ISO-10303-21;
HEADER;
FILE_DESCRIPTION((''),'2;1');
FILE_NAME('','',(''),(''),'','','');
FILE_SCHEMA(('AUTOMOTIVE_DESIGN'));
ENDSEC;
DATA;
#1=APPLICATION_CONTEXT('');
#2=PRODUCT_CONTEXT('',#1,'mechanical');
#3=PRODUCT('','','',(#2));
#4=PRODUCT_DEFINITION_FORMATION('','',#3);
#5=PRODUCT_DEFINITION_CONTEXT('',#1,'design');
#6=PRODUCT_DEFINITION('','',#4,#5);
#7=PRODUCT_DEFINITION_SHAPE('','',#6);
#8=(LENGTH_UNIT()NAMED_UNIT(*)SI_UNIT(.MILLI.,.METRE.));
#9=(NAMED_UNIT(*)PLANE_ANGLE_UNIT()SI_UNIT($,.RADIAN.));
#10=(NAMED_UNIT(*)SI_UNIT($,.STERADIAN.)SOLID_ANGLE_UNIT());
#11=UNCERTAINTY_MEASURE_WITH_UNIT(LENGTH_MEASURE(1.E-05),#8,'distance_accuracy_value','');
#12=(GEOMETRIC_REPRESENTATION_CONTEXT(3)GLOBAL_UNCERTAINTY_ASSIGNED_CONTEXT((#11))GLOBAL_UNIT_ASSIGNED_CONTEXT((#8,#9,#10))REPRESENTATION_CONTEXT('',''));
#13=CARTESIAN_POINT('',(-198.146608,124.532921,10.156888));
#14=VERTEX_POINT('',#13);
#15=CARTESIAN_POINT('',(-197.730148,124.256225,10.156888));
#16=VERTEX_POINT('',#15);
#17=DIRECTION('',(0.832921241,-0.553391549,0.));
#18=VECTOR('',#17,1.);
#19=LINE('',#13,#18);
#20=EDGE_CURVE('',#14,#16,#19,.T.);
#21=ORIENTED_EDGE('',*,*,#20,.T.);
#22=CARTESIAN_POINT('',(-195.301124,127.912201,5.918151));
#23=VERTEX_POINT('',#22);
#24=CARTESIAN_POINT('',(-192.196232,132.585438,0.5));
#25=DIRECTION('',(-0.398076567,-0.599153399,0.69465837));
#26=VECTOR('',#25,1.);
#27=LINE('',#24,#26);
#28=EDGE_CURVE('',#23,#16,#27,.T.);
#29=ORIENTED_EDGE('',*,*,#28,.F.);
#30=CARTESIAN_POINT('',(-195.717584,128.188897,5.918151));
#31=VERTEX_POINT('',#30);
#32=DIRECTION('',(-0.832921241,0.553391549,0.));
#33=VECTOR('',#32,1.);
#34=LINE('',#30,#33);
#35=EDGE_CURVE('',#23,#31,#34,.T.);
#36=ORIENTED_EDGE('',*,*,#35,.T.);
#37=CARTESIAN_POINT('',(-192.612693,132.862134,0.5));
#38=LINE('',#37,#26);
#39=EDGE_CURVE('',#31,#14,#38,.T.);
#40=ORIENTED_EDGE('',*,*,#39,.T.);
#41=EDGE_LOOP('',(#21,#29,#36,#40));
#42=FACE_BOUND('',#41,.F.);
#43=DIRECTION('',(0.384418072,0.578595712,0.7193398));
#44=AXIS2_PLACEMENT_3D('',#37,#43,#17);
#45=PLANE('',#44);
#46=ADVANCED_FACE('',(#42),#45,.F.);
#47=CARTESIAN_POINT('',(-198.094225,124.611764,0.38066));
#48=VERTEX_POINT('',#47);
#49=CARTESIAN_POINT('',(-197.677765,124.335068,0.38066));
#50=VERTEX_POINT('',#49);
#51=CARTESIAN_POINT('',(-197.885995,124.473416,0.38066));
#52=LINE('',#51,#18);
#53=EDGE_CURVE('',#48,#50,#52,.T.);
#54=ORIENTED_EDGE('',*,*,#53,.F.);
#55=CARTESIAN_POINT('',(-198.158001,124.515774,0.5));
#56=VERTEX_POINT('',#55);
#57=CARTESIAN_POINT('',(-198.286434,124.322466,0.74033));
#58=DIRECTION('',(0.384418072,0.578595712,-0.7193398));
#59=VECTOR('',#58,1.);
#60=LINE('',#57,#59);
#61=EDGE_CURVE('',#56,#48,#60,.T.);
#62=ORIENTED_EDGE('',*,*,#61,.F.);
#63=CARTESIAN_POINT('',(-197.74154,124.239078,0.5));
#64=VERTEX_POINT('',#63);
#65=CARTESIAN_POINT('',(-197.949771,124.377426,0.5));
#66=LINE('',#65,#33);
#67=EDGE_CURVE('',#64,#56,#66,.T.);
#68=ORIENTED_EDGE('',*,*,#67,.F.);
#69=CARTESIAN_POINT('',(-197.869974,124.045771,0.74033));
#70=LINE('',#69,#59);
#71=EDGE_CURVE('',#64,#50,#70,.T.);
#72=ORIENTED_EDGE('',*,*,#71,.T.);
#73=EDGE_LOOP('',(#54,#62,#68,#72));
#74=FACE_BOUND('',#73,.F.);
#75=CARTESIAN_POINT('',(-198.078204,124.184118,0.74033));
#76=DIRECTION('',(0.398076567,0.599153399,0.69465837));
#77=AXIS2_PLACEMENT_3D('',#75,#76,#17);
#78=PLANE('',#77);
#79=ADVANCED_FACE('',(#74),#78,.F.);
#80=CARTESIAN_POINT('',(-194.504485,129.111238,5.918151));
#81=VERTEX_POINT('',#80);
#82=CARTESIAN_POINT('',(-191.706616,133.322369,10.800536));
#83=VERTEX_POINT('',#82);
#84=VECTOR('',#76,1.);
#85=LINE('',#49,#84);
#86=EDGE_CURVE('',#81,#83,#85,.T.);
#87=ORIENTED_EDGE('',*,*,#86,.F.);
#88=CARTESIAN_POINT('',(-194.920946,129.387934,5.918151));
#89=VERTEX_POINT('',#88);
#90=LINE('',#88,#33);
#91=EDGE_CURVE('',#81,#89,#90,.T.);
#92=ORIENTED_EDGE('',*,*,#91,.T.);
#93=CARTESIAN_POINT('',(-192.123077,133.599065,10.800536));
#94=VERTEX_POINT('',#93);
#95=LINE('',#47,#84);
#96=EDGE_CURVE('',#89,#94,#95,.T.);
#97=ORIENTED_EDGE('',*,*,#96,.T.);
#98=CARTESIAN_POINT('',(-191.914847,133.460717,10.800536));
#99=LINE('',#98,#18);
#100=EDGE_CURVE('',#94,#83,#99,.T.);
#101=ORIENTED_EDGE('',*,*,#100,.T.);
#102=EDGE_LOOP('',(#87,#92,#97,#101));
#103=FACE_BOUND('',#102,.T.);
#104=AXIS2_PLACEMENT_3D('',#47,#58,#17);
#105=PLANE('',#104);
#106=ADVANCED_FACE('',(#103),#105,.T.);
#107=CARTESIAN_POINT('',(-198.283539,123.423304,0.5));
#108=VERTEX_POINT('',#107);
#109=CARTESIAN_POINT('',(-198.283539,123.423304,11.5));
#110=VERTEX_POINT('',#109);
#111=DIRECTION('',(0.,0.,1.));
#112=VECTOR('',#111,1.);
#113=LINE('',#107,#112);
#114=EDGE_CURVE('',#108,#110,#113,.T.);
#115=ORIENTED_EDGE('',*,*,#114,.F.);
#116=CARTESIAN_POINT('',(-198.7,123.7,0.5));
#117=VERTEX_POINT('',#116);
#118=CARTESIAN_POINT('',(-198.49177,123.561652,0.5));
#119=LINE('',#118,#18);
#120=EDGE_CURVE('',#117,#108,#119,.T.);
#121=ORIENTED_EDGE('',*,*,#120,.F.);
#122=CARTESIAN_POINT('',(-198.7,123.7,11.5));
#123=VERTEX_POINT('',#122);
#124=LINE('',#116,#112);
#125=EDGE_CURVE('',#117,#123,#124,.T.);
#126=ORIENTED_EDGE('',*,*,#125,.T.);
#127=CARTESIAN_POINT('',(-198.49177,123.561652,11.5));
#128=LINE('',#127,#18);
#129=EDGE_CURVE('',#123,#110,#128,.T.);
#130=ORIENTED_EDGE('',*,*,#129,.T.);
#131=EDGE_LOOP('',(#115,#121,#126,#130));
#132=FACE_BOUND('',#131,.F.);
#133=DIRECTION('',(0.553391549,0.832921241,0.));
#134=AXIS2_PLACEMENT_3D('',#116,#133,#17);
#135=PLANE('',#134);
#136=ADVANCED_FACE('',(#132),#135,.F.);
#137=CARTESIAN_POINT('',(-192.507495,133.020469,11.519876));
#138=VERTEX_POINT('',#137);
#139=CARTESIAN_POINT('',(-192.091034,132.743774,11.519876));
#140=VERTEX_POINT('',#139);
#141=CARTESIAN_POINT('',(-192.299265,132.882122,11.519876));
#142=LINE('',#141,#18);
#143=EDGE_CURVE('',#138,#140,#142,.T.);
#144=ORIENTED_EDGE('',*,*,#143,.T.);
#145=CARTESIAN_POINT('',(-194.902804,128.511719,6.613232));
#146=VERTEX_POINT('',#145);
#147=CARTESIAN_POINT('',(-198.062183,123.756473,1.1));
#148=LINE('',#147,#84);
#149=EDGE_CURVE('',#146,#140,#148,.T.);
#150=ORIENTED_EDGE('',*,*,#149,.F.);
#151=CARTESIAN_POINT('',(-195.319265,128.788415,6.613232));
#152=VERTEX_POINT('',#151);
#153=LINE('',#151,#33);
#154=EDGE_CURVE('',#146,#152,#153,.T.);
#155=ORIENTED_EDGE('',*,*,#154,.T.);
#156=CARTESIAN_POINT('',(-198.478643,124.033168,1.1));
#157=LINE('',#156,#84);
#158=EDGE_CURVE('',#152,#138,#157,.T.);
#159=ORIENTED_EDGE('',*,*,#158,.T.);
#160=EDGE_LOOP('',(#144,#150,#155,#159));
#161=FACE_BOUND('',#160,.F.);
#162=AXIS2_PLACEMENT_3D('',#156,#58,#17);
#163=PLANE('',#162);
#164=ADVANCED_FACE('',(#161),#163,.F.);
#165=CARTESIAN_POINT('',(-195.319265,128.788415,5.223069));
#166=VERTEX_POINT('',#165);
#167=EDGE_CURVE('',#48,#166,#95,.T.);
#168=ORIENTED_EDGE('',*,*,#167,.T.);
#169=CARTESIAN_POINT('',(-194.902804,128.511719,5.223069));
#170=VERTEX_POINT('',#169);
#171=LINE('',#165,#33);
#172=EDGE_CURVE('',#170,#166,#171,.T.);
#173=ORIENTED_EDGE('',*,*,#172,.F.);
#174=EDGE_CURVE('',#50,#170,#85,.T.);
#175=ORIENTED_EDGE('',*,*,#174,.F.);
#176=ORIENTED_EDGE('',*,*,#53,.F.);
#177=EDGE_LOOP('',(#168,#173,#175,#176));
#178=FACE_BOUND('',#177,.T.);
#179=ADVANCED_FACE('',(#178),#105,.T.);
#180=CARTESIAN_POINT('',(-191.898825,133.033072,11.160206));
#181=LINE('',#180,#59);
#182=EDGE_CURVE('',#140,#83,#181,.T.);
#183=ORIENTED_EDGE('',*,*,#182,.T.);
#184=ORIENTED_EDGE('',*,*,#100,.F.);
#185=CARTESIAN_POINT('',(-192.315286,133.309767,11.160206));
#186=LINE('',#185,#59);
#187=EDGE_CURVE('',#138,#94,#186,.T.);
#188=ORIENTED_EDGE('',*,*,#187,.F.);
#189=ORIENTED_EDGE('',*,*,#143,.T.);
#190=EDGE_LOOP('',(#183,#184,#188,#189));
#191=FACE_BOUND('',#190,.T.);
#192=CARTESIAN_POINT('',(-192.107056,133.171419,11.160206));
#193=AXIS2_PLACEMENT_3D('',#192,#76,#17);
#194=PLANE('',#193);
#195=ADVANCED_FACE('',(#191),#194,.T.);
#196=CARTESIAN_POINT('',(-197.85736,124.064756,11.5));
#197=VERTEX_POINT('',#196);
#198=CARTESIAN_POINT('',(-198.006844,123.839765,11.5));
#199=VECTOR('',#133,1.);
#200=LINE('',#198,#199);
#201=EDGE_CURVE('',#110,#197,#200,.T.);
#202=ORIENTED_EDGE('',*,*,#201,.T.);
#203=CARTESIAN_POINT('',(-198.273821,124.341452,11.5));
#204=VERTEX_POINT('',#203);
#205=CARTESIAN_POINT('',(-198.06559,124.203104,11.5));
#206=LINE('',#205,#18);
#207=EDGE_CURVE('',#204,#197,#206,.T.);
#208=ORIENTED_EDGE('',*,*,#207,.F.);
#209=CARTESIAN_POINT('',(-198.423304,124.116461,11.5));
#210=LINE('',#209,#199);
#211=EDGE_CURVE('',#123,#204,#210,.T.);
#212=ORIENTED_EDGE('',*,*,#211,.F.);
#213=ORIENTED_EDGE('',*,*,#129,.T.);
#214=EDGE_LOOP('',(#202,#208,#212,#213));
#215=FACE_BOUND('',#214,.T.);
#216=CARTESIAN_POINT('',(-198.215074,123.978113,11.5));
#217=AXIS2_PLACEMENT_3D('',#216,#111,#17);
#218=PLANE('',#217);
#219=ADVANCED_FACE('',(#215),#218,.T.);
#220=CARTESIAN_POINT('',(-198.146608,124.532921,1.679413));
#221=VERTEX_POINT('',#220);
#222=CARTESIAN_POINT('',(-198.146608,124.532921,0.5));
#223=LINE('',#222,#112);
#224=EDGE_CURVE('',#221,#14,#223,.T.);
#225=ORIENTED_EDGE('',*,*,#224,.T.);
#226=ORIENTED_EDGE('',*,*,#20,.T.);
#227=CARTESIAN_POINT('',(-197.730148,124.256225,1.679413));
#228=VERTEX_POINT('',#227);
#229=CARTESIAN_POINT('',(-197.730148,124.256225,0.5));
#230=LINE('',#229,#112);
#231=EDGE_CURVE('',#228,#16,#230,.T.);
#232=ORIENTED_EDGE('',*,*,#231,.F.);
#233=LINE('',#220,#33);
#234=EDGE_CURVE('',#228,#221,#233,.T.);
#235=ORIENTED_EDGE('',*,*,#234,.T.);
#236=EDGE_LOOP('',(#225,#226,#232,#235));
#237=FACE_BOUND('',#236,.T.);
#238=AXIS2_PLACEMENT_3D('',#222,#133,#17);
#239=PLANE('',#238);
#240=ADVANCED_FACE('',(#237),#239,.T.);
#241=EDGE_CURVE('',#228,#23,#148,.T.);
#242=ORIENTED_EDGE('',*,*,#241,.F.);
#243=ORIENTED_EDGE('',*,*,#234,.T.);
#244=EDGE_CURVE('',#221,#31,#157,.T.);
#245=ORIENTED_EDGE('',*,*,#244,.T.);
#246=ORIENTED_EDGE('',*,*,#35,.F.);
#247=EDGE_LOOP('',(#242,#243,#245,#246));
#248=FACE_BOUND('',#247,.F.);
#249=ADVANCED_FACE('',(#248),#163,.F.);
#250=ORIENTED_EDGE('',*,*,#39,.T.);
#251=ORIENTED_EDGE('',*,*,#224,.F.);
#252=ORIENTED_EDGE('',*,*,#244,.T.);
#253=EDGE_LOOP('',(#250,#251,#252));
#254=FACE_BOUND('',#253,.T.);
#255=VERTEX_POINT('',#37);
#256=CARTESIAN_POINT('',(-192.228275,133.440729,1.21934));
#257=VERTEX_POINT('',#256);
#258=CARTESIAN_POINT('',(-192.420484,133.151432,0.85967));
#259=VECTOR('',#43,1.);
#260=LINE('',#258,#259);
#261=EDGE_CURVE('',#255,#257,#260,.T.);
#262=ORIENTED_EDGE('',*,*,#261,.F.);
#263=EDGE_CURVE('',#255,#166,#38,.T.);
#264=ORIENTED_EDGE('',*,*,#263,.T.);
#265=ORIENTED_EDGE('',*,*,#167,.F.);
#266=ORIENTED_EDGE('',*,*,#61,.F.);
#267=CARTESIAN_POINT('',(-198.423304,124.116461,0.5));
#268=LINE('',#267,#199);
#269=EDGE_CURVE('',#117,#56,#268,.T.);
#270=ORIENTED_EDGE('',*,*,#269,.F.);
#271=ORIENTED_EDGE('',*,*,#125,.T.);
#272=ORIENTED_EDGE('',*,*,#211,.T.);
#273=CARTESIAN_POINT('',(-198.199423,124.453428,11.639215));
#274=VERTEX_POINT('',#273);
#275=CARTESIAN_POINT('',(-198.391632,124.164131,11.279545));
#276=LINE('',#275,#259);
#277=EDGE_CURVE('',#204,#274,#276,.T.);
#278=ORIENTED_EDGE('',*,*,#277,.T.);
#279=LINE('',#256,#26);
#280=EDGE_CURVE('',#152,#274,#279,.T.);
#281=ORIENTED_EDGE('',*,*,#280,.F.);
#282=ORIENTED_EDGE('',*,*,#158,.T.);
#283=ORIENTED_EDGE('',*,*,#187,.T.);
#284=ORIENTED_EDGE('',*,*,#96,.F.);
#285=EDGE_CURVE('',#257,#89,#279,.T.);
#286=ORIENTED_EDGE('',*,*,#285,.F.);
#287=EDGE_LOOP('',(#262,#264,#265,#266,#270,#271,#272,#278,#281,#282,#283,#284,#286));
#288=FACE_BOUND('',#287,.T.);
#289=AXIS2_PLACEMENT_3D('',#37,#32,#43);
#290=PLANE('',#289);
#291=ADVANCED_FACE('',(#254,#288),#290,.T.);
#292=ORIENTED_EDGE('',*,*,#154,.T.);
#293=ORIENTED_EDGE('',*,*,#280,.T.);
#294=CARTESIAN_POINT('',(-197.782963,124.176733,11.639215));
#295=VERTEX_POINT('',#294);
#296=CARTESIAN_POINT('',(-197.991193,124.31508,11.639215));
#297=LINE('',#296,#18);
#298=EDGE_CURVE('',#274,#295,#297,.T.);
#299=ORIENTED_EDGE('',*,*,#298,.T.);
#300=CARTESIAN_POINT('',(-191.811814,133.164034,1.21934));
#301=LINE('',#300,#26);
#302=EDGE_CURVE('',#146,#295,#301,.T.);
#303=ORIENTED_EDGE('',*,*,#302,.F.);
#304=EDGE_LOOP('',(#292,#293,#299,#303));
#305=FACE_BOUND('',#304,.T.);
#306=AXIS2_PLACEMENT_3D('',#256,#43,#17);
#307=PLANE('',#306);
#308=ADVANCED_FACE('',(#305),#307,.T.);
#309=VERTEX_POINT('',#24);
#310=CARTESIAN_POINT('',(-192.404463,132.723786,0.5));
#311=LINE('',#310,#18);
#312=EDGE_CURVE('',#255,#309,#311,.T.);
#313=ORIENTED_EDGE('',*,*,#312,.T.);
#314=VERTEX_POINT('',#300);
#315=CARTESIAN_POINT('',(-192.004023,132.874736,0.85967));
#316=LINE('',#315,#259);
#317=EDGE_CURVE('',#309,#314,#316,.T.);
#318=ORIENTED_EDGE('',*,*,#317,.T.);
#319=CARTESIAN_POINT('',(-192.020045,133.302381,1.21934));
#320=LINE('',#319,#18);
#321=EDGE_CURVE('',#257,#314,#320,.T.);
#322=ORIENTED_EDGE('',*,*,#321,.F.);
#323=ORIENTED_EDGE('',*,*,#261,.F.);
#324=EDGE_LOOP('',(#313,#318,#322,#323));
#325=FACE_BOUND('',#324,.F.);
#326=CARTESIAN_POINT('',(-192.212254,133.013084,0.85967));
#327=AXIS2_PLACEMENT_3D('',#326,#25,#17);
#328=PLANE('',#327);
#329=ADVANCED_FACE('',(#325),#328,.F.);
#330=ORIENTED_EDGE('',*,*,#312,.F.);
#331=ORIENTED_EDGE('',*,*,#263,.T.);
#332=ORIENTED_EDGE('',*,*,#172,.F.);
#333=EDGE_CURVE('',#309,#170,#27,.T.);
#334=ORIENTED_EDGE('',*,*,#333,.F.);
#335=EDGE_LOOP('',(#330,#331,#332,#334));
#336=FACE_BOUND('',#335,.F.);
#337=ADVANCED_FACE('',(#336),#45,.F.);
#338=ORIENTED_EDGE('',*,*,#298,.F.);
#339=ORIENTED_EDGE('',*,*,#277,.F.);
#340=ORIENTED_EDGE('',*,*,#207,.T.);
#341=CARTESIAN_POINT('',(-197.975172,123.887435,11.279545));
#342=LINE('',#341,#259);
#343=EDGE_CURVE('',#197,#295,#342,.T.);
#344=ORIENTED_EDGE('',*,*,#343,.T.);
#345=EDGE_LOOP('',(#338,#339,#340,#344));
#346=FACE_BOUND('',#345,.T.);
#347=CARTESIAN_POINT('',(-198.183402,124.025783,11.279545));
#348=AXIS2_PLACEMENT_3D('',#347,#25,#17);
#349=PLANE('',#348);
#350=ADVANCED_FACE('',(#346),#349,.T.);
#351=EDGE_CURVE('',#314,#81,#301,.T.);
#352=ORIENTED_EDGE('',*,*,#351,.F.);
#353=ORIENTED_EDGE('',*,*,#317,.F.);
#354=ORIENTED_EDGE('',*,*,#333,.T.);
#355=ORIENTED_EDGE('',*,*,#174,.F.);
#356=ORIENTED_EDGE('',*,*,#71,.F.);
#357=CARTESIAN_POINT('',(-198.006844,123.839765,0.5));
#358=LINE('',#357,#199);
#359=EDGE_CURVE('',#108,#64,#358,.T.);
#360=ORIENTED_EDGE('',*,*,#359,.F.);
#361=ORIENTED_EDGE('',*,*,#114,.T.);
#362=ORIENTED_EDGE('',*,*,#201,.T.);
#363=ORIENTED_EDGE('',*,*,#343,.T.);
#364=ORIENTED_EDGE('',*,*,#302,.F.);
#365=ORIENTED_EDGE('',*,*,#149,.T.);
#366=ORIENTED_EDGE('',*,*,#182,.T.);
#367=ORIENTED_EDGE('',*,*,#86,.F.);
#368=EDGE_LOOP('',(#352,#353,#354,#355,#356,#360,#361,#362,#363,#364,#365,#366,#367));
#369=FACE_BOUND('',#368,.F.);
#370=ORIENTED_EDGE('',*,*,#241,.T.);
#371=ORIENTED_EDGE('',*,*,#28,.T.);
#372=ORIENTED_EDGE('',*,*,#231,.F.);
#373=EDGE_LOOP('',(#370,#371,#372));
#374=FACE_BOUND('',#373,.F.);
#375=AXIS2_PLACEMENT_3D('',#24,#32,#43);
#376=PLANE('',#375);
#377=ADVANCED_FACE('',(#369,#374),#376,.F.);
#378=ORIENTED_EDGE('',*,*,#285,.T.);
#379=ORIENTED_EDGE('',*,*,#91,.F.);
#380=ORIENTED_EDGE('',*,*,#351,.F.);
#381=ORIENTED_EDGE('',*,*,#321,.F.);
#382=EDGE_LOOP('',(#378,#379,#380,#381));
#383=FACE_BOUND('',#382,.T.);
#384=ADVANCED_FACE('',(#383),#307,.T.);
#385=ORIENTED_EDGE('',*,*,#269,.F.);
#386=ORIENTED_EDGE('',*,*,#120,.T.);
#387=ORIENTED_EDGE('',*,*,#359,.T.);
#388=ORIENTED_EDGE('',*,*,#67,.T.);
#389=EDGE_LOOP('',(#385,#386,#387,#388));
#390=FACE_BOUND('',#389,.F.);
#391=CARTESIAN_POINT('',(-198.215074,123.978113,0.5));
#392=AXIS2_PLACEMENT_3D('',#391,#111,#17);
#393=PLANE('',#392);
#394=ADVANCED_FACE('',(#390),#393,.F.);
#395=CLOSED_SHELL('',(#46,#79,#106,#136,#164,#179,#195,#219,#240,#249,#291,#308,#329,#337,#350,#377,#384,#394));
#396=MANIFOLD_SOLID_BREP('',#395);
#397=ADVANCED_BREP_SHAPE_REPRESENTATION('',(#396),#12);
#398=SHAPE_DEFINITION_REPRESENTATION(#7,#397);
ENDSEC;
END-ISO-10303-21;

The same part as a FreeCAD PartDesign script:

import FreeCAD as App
import Part
import Sketcher

V = App.Vector

doc = App.newDocument("Part")
body = doc.addObject("PartDesign::Body", "Body")

# Sketch on XY plane
sketch1 = body.newObject("Sketcher::SketchObject", "Sketch")
sketch1.AttachmentSupport = (doc.getObject("XY_Plane"), [""])
sketch1.MapMode = "FlatFace"
sketch1.addGeometry(Part.LineSegment(V(0, 1, 0), V(0, 0, 0)), False)
sketch1.addGeometry(Part.LineSegment(V(0, 0, 0), V(0.5, 0, 0)), False)
sketch1.addGeometry(Part.LineSegment(V(0.5, 0, 0), V(0.5, 1, 0)), False)
sketch1.addGeometry(Part.LineSegment(V(0.5, 1, 0), V(0, 1, 0)), False)
sketch1.addConstraint(Sketcher.Constraint("Coincident", 0, 2, 1, 1))
sketch1.addConstraint(Sketcher.Constraint("Coincident", 1, 2, 2, 1))
sketch1.addConstraint(Sketcher.Constraint("Coincident", 2, 2, 3, 1))
sketch1.addConstraint(Sketcher.Constraint("Coincident", 3, 2, 0, 1))
sketch1.addConstraint(Sketcher.Constraint("Vertical", 0))
sketch1.addConstraint(Sketcher.Constraint("Horizontal", 1))
sketch1.addConstraint(Sketcher.Constraint("Vertical", 2))
sketch1.addConstraint(Sketcher.Constraint("Horizontal", 3))
sketch1.addConstraint(Sketcher.Constraint("Coincident", 0, 2, -1, 1))
sketch1.addConstraint(Sketcher.Constraint("DistanceY", 0, 2, 0, 1, 1.0))
sketch1.addConstraint(Sketcher.Constraint("DistanceX", 1, 1, 1, 2, 0.5))
pad1 = body.newObject("PartDesign::Pad", "Pad")
pad1.Profile = sketch1
pad1.Length = 15
body2 = doc.addObject("PartDesign::Body", "Body001")
doc.recompute()

body.Placement = App.Placement(V(0, 0, 0), App.Rotation(V(1, 0, 0), 46))
boolean = body2.newObject("PartDesign::Boolean", "Boolean")
boolean.Type = "Fuse"
boolean.addObjects([body])
body3 = doc.addObject("PartDesign::Body", "Body002")
doc.recompute()

body2.Placement = App.Placement(V(0, 11, 0.5), App.Rotation(V(0, 0, 1), 0))
boolean2 = body3.newObject("PartDesign::Boolean", "Boolean001")
boolean2.Type = "Fuse"
boolean2.addObjects([body2])
body4 = doc.addObject("PartDesign::Body", "Body003")

# Sketch on XY plane
sketch2 = body4.newObject("Sketcher::SketchObject", "Sketch001")
sketch2.AttachmentSupport = (doc.getObject("XY_Plane003"), [""])
sketch2.MapMode = "FlatFace"
sketch2.addGeometry(Part.LineSegment(V(0, 1, 0), V(0, 0, 0)), False)
sketch2.addGeometry(Part.LineSegment(V(0, 0, 0), V(0.5, 0, 0)), False)
sketch2.addGeometry(Part.LineSegment(V(0.5, 0, 0), V(0.5, 1, 0)), False)
sketch2.addGeometry(Part.LineSegment(V(0.5, 1, 0), V(0, 1, 0)), False)
sketch2.addConstraint(Sketcher.Constraint("Coincident", 0, 2, 1, 1))
sketch2.addConstraint(Sketcher.Constraint("Coincident", 1, 2, 2, 1))
sketch2.addConstraint(Sketcher.Constraint("Coincident", 2, 2, 3, 1))
sketch2.addConstraint(Sketcher.Constraint("Coincident", 3, 2, 0, 1))
sketch2.addConstraint(Sketcher.Constraint("Vertical", 0))
sketch2.addConstraint(Sketcher.Constraint("Horizontal", 1))
sketch2.addConstraint(Sketcher.Constraint("Vertical", 2))
sketch2.addConstraint(Sketcher.Constraint("Horizontal", 3))
sketch2.addConstraint(Sketcher.Constraint("Coincident", 0, 2, -1, 1))
sketch2.addConstraint(Sketcher.Constraint("DistanceY", 0, 2, 0, 1, 1.0))
sketch2.addConstraint(Sketcher.Constraint("DistanceX", 1, 1, 1, 2, 0.5))
pad2 = body4.newObject("PartDesign::Pad", "Pad001")
pad2.Profile = sketch2
pad2.Length = 15
body5 = doc.addObject("PartDesign::Body", "Body004")
doc.recompute()

body4.Placement = App.Placement(V(0, 0, 0), App.Rotation(V(1, 0, 0), 314))
boolean3 = body5.newObject("PartDesign::Boolean", "Boolean002")
boolean3.Type = "Fuse"
boolean3.addObjects([body4])
body6 = doc.addObject("PartDesign::Body", "Body005")
doc.recompute()

body5.Placement = App.Placement(V(0, 0.4, 1.1), App.Rotation(V(0, 0, 1), 0))
boolean4 = body6.newObject("PartDesign::Boolean", "Boolean003")
boolean4.Type = "Fuse"
boolean4.addObjects([body5])
body7 = doc.addObject("PartDesign::Body", "Body006")

# Sketch on XY plane
sketch3 = body7.newObject("Sketcher::SketchObject", "Sketch002")
sketch3.AttachmentSupport = (doc.getObject("XY_Plane006"), [""])
sketch3.MapMode = "FlatFace"
sketch3.AttachmentOffset = App.Placement(V(0, 0, 0.5), App.Rotation())
sketch3.addGeometry(Part.LineSegment(V(0, 1, 0), V(0, 0, 0)), False)
sketch3.addGeometry(Part.LineSegment(V(0, 0, 0), V(0.5, 0, 0)), False)
sketch3.addGeometry(Part.LineSegment(V(0.5, 0, 0), V(0.5, 1, 0)), False)
sketch3.addGeometry(Part.LineSegment(V(0.5, 1, 0), V(0, 1, 0)), False)
sketch3.addConstraint(Sketcher.Constraint("Coincident", 0, 2, 1, 1))
sketch3.addConstraint(Sketcher.Constraint("Coincident", 1, 2, 2, 1))
sketch3.addConstraint(Sketcher.Constraint("Coincident", 2, 2, 3, 1))
sketch3.addConstraint(Sketcher.Constraint("Coincident", 3, 2, 0, 1))
sketch3.addConstraint(Sketcher.Constraint("Vertical", 0))
sketch3.addConstraint(Sketcher.Constraint("Horizontal", 1))
sketch3.addConstraint(Sketcher.Constraint("Vertical", 2))
sketch3.addConstraint(Sketcher.Constraint("Horizontal", 3))
sketch3.addConstraint(Sketcher.Constraint("Coincident", 0, 2, -1, 1))
sketch3.addConstraint(Sketcher.Constraint("DistanceY", 0, 2, 0, 1, 1.0))
sketch3.addConstraint(Sketcher.Constraint("DistanceX", 1, 1, 1, 2, 0.5))
pad3 = body7.newObject("PartDesign::Pad", "Pad002")
pad3.Profile = sketch3
pad3.Length = 11
doc.recompute()

boolean5 = body7.newObject("PartDesign::Boolean", "Boolean004")
boolean5.Type = "Fuse"
boolean5.addObjects([body3])
doc.recompute()

boolean6 = body7.newObject("PartDesign::Boolean", "Boolean005")
boolean6.Type = "Fuse"
boolean6.addObjects([body6])
body8 = doc.addObject("PartDesign::Body", "Body007")
doc.recompute()

body7.Placement = App.Placement(V(-198.7, 123.7, 0), App.Rotation(V(0, 0, 1), 326.4))
boolean7 = body8.newObject("PartDesign::Boolean", "Boolean006")
boolean7.Type = "Fuse"
boolean7.addObjects([body7])

doc.recompute()
